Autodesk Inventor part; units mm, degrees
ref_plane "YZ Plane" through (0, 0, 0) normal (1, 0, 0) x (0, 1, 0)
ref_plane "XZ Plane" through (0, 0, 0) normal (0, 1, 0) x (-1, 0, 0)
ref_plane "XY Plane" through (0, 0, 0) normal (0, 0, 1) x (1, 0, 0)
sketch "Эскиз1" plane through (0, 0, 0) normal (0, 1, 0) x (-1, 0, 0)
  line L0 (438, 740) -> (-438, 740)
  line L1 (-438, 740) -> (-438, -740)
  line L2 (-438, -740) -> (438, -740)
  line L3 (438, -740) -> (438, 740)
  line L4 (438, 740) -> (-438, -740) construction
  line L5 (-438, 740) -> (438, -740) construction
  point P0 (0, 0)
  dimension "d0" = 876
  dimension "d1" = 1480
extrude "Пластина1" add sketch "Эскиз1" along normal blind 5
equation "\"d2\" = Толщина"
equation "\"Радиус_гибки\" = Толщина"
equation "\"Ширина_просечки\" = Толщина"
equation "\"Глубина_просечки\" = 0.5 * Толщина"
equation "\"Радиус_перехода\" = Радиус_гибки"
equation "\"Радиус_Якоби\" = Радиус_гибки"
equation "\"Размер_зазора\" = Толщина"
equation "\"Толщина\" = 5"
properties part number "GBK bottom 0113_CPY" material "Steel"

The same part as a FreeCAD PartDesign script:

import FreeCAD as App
import Part
import Sketcher

V = App.Vector

doc = App.newDocument("Part")
body = doc.addObject("PartDesign::Body", "Body")

sketch1 = body.newObject("Sketcher::SketchObject", "Sketch")
sketch1.AttachmentSupport = (doc.getObject("XZ_Plane"), [""])
sketch1.MapMode = "FlatFace"
sketch1.addGeometry(Part.LineSegment(V(-438, -740, 0), V(-438, 740, 0)), False)
sketch1.addGeometry(Part.LineSegment(V(-438, 740, 0), V(438, 740, 0)), False)
sketch1.addGeometry(Part.LineSegment(V(438, 740, 0), V(438, -740, 0)), False)
sketch1.addGeometry(Part.LineSegment(V(438, -740, 0), V(-438, -740, 0)), False)
sketch1.addConstraint(Sketcher.Constraint("Coincident", 0, 2, 1, 1))
sketch1.addConstraint(Sketcher.Constraint("Coincident", 1, 2, 2, 1))
sketch1.addConstraint(Sketcher.Constraint("Coincident", 2, 2, 3, 1))
sketch1.addConstraint(Sketcher.Constraint("Coincident", 3, 2, 0, 1))
sketch1.addConstraint(Sketcher.Constraint("Vertical", 0))
sketch1.addConstraint(Sketcher.Constraint("Horizontal", 1))
sketch1.addConstraint(Sketcher.Constraint("Vertical", 2))
sketch1.addConstraint(Sketcher.Constraint("Horizontal", 3))
sketch1.addConstraint(Sketcher.Constraint("Symmetric", 0, 2, 2, 2, -1, 1))
sketch1.addConstraint(Sketcher.Constraint("DistanceX", 1, 1, 1, 2, 876.0))
sketch1.addConstraint(Sketcher.Constraint("DistanceY", 0, 1, 0, 2, 1480.0))
pad1 = body.newObject("PartDesign::Pad", "Pad")
pad1.Profile = sketch1
pad1.Length = 5
pad1.Reversed = True

doc.recompute()
